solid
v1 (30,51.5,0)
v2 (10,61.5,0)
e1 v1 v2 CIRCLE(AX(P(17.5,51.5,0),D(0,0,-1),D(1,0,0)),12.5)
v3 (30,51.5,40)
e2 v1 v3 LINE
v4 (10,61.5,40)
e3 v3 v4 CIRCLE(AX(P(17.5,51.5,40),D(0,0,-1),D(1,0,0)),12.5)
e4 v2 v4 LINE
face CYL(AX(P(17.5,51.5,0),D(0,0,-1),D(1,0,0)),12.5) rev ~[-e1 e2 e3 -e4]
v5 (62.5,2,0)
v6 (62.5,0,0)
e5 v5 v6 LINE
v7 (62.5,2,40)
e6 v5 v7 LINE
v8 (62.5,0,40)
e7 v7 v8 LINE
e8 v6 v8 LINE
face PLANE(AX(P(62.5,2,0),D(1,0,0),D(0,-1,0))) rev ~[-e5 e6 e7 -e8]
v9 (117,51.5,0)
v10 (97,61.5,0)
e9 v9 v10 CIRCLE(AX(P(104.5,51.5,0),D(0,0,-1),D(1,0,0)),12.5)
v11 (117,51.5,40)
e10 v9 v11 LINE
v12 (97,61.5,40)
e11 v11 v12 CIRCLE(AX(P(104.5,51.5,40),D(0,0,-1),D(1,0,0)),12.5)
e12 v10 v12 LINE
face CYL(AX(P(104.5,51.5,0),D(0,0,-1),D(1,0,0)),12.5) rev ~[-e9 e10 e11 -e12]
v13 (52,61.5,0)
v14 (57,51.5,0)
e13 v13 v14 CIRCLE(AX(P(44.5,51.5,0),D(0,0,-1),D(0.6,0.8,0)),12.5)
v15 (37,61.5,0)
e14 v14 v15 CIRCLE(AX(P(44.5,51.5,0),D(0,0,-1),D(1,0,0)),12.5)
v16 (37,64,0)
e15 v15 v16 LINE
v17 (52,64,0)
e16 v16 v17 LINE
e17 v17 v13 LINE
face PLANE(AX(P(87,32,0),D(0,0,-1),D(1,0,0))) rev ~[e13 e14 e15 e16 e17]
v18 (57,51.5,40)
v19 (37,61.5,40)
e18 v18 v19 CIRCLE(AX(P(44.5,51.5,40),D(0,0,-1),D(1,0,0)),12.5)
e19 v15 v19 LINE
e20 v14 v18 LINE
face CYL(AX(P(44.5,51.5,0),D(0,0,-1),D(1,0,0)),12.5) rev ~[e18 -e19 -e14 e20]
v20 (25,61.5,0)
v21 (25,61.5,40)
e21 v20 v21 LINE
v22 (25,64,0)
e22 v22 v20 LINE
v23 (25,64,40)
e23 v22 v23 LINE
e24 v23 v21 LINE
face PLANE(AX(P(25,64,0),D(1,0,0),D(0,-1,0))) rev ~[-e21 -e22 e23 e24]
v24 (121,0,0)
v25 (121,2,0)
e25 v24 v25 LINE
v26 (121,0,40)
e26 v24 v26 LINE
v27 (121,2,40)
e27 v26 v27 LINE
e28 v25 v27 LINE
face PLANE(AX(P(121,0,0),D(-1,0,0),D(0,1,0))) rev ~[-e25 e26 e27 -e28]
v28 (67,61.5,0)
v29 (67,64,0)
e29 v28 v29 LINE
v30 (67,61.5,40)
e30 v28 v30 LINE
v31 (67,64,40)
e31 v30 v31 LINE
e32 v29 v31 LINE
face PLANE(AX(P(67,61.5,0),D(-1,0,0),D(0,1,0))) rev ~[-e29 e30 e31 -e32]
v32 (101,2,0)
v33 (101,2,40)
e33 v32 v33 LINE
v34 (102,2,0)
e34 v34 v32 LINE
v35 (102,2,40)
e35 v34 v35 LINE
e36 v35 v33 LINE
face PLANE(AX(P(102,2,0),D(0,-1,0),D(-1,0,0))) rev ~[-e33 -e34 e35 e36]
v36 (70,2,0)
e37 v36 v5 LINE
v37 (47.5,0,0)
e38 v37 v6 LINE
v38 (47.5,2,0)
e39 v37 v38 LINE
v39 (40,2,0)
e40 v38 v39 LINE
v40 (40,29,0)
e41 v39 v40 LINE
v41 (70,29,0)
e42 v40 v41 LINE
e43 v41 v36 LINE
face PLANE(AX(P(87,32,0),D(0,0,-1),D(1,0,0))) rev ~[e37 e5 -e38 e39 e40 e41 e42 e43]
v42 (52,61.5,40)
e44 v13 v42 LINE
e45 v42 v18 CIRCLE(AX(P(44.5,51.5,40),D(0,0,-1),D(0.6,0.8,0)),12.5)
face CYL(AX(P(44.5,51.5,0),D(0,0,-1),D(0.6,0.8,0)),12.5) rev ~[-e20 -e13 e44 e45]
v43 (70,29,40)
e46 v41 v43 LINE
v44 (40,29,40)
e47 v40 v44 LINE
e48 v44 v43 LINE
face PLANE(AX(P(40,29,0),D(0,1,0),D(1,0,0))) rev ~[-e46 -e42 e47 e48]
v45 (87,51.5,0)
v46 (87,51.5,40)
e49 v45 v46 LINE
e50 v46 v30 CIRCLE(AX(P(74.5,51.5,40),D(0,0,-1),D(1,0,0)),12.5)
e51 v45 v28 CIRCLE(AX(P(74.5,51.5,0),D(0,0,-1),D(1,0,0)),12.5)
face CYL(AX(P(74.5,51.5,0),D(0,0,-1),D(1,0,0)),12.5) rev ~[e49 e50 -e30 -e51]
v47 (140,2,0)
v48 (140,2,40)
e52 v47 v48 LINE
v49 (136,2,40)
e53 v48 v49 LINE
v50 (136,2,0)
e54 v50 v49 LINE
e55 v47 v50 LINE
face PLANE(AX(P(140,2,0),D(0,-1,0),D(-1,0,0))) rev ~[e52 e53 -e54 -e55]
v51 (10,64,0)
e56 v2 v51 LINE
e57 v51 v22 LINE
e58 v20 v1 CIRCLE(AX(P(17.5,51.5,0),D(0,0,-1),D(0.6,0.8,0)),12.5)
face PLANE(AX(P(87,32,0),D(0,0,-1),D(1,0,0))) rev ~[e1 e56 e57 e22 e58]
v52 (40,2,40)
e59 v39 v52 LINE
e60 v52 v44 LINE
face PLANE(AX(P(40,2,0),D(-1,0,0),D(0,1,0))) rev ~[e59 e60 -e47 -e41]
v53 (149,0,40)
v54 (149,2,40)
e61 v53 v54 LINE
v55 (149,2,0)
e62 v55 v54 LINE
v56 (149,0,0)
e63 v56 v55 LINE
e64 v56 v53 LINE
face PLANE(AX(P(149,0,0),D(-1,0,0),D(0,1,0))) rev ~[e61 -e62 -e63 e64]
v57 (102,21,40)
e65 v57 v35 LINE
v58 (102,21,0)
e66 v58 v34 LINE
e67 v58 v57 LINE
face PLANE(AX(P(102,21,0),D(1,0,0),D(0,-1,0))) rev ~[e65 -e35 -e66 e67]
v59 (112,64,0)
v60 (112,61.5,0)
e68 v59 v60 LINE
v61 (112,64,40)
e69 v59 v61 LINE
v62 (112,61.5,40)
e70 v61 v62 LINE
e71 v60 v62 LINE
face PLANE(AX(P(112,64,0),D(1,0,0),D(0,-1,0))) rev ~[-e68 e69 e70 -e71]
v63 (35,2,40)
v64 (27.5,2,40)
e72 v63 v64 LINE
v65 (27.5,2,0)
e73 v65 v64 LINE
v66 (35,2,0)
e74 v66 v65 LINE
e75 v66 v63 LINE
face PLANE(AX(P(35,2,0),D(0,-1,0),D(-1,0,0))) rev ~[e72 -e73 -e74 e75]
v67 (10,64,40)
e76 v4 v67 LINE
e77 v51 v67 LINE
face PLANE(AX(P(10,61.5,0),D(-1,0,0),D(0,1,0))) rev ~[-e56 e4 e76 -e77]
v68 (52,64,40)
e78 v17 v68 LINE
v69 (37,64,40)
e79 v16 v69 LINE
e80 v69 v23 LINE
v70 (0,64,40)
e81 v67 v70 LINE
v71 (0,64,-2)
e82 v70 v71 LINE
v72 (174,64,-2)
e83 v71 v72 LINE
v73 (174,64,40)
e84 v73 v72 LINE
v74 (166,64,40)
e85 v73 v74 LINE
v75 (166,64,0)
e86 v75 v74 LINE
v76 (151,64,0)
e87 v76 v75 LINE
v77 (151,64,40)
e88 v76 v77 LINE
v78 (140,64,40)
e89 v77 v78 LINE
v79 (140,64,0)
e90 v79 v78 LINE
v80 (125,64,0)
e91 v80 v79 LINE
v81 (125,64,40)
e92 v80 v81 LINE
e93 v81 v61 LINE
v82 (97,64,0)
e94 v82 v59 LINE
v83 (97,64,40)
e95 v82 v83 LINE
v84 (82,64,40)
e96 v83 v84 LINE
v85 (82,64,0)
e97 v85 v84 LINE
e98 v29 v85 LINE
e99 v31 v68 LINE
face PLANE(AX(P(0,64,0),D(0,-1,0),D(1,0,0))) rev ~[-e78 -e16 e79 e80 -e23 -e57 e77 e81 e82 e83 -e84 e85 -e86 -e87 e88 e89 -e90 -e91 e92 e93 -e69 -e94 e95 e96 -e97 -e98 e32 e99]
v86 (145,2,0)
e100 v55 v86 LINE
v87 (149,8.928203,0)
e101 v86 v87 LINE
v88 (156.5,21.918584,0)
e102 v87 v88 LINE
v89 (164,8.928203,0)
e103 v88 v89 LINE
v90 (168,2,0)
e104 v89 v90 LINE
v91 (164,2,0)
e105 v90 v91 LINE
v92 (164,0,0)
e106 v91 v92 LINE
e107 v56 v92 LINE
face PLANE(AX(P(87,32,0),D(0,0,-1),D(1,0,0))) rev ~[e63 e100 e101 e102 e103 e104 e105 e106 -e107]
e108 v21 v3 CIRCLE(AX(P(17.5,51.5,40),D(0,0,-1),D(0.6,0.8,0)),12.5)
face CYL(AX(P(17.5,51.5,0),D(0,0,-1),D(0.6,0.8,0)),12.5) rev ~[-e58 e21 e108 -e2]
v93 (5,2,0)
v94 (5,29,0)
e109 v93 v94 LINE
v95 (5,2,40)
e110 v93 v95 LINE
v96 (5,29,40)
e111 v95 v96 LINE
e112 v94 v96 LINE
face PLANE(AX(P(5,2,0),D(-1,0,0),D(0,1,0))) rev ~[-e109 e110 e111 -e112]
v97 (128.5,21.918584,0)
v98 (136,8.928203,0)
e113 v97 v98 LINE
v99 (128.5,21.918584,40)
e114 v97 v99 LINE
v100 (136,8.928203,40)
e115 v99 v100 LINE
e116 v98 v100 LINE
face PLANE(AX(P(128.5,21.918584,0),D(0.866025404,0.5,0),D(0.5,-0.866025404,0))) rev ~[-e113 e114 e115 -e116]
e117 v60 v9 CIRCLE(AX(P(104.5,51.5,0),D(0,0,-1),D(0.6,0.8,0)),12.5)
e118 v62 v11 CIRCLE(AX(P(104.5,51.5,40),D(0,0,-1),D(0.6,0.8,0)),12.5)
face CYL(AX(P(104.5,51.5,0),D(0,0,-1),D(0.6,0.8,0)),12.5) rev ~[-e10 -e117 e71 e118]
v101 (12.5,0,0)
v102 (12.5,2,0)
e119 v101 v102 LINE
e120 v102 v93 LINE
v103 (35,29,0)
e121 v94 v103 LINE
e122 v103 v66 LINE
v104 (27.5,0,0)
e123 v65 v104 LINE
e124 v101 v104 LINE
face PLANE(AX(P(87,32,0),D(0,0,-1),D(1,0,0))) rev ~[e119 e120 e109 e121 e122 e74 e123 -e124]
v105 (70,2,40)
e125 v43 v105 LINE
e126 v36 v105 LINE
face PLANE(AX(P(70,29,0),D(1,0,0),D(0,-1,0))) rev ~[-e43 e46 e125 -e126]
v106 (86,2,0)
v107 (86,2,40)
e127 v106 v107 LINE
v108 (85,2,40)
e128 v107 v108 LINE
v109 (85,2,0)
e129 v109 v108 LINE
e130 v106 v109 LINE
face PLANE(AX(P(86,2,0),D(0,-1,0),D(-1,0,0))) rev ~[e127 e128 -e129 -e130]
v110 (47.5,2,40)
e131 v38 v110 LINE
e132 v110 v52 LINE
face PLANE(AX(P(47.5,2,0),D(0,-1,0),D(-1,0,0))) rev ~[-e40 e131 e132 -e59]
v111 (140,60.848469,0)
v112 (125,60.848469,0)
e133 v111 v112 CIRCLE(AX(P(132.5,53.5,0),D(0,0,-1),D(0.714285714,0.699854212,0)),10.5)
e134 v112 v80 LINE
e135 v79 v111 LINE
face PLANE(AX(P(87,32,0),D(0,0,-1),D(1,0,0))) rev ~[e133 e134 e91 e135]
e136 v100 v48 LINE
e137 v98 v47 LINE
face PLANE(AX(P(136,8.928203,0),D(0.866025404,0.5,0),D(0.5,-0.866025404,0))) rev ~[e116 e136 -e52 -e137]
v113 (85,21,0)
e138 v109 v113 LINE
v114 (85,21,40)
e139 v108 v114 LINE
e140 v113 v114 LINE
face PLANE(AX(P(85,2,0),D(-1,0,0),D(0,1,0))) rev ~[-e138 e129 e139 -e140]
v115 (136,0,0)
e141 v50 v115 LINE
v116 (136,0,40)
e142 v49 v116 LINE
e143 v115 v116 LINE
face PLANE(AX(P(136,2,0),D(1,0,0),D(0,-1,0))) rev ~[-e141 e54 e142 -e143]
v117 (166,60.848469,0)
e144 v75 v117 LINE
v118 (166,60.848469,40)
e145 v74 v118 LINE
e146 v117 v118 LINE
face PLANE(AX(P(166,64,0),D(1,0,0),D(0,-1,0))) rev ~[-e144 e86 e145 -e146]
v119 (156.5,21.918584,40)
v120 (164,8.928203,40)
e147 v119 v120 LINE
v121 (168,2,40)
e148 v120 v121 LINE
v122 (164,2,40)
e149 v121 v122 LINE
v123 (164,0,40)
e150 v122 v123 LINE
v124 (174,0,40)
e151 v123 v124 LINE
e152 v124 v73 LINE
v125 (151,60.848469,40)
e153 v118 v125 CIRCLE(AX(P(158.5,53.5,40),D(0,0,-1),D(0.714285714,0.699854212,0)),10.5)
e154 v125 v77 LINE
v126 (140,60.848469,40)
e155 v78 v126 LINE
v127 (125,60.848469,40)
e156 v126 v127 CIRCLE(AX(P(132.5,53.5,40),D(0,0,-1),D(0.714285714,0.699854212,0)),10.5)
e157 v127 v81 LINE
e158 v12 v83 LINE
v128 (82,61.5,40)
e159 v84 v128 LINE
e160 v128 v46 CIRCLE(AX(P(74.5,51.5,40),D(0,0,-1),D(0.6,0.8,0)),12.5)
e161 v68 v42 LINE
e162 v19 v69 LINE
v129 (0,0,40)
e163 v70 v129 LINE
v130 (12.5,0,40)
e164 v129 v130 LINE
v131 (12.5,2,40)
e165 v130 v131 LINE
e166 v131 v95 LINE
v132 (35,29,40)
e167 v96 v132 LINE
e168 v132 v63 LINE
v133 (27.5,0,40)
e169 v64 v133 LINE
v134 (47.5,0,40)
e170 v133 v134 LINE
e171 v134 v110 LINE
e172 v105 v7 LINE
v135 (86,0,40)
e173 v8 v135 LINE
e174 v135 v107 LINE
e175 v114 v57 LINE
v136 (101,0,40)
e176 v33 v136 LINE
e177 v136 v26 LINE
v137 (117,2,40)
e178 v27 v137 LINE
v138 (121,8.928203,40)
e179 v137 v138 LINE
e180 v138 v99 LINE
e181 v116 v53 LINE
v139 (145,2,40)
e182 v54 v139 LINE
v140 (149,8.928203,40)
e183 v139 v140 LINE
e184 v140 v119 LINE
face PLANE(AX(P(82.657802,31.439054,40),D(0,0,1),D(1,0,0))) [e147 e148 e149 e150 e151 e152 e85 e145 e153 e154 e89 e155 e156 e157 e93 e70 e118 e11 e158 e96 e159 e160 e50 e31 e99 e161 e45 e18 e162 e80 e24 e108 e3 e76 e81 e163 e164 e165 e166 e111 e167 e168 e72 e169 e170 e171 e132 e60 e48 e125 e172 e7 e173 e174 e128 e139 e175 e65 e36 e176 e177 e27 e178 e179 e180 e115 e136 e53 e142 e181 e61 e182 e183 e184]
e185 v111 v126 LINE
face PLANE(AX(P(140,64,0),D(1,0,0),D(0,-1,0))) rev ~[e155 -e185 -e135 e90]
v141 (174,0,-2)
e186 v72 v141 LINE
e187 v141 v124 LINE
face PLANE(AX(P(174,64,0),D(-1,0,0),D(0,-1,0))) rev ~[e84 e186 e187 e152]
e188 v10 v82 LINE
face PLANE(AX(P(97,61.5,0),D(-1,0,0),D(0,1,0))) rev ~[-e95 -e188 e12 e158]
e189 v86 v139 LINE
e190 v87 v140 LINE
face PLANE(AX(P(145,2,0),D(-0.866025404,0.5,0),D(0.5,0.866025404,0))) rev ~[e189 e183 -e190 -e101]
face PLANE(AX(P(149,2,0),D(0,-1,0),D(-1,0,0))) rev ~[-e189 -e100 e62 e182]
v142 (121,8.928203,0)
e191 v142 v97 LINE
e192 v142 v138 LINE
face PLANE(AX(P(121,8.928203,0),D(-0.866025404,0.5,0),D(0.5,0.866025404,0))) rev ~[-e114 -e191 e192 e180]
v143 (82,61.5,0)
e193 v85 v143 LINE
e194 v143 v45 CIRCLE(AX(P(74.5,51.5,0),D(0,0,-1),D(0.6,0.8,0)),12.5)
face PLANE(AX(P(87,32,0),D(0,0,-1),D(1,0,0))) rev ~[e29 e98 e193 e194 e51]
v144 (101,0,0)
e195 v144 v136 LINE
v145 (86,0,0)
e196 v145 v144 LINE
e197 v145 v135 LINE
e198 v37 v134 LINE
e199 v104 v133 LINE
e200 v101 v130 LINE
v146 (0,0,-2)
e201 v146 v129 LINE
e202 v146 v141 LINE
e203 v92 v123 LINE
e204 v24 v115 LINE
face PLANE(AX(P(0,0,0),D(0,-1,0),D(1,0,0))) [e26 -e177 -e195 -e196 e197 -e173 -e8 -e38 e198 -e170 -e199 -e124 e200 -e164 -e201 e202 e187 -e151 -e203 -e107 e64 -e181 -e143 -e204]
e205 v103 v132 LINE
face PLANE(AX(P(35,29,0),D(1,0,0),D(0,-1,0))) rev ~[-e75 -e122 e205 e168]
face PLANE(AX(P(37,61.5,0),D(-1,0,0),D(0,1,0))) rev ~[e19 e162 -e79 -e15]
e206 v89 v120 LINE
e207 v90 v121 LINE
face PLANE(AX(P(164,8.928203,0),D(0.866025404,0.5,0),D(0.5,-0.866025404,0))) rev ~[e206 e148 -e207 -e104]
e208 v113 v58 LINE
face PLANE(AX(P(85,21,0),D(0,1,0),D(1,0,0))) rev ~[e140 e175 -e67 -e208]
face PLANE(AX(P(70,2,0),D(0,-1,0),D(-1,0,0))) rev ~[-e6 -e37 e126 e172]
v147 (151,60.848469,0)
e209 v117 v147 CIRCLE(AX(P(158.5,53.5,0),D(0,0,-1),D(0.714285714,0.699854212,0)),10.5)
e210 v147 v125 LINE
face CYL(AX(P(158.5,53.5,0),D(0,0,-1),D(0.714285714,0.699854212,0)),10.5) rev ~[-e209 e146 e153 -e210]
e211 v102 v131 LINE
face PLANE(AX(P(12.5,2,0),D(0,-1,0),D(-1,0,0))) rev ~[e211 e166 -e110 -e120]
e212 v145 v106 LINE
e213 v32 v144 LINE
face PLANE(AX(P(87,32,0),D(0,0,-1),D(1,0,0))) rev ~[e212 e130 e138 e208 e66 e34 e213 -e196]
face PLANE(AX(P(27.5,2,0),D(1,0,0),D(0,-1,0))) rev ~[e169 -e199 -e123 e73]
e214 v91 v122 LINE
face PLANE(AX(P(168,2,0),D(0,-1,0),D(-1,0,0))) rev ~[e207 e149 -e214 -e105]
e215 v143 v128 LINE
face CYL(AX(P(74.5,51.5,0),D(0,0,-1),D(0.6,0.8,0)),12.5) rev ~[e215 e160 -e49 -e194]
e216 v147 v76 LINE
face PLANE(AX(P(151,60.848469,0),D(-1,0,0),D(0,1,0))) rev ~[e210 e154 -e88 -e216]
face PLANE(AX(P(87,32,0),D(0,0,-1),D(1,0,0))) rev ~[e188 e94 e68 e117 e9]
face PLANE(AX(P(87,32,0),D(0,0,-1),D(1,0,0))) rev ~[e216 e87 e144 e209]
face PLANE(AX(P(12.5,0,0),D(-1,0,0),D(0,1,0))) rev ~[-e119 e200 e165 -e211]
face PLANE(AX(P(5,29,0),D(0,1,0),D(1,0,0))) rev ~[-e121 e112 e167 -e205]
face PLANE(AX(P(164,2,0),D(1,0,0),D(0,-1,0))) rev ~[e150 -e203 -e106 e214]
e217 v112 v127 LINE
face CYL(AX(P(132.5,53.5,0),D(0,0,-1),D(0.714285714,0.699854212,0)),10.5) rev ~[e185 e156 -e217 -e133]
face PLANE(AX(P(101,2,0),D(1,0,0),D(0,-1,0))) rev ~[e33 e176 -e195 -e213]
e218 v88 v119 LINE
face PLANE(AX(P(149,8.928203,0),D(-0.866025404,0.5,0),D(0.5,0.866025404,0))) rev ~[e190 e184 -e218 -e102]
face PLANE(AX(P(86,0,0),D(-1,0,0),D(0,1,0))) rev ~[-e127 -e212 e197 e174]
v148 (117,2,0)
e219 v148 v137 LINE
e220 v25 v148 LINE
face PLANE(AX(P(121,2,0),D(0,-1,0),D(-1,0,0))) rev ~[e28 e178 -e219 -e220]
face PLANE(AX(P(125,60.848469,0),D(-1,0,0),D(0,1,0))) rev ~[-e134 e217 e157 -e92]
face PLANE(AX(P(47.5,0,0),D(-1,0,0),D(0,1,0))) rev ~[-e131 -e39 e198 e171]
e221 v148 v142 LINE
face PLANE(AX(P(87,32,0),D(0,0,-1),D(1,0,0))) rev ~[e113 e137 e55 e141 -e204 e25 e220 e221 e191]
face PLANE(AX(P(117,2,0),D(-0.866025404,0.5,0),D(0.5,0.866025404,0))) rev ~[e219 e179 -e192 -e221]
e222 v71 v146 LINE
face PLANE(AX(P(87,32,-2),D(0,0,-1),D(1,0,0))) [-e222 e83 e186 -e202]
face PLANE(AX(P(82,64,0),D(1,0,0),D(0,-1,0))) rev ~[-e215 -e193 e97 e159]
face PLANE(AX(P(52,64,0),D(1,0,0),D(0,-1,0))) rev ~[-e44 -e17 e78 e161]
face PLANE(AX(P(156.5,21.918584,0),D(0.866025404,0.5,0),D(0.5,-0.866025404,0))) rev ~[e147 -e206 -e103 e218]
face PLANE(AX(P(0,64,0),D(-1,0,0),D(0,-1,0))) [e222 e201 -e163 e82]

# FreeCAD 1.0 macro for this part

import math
import FreeCAD as App
import Part
import Sketcher
Q = App.Units.Quantity

doc = App.newDocument("Part")
params = doc.addObject("Spreadsheet::Sheet", "Params")
for row, (alias, value) in enumerate([
    ("sketch1_radius", "10.5 mm"),
    ("sketch1_radius2", "12.5 mm"),
    ("sketch1_width", "30 mm"),
    ("sketch1_width2", "20 mm"),
    ("sketch1_width3", "1 mm"),
    ("pad1_length", "40 mm"),
    ("sketch2_width", "174 mm"),
    ("sketch2_height", "64 mm"),
    ("pad2_length", "2 mm"),
], start=1):
    params.set(f"A{row}", alias)
    params.set(f"B{row}", "=" + value)
    params.setAlias(f"B{row}", alias)

body = doc.addObject("PartDesign::Body", "Body")

# Sketch on XY plane
sketch1 = body.newObject("Sketcher::SketchObject", "Sketch")
sketch1.AttachmentSupport = (doc.getObject("XY_Plane"), [""])
sketch1.MapMode = "FlatFace"
sketch1.addGeometry(Part.LineSegment(App.Vector(0, 64, 0), App.Vector(0, 0, 0)), False)
sketch1.addGeometry(Part.LineSegment(App.Vector(0, 0, 0), App.Vector(12.5, 0, 0)), False)
sketch1.addGeometry(Part.LineSegment(App.Vector(12.5, 0, 0), App.Vector(12.5, 2, 0)), False)
sketch1.addGeometry(Part.LineSegment(App.Vector(12.5, 2, 0), App.Vector(5, 2, 0)), False)
sketch1.addGeometry(Part.LineSegment(App.Vector(5, 2, 0), App.Vector(5, 29, 0)), False)
sketch1.addGeometry(Part.LineSegment(App.Vector(5, 29, 0), App.Vector(35, 29, 0)), False)
sketch1.addGeometry(Part.LineSegment(App.Vector(35, 29, 0), App.Vector(35, 2, 0)), False)
sketch1.addGeometry(Part.LineSegment(App.Vector(35, 2, 0), App.Vector(27.5, 2, 0)), False)
sketch1.addGeometry(Part.LineSegment(App.Vector(27.5, 2, 0), App.Vector(27.5, 0, 0)), False)
sketch1.addGeometry(Part.LineSegment(App.Vector(27.5, 0, 0), App.Vector(47.5, 0, 0)), False)
sketch1.addGeometry(Part.LineSegment(App.Vector(47.5, 0, 0), App.Vector(47.5, 2, 0)), False)
sketch1.addGeometry(Part.LineSegment(App.Vector(47.5, 2, 0), App.Vector(40, 2, 0)), False)
sketch1.addGeometry(Part.LineSegment(App.Vector(40, 2, 0), App.Vector(40, 29, 0)), False)
sketch1.addGeometry(Part.LineSegment(App.Vector(40, 29, 0), App.Vector(70, 29, 0)), False)
sketch1.addGeometry(Part.LineSegment(App.Vector(70, 29, 0), App.Vector(70, 2, 0)), False)
sketch1.addGeometry(Part.LineSegment(App.Vector(70, 2, 0), App.Vector(62.5, 2, 0)), False)
sketch1.addGeometry(Part.LineSegment(App.Vector(62.5, 2, 0), App.Vector(62.5, 0, 0)), False)
sketch1.addGeometry(Part.LineSegment(App.Vector(62.5, 0, 0), App.Vector(86, 0, 0)), False)
sketch1.addGeometry(Part.LineSegment(App.Vector(86, 0, 0), App.Vector(86, 2, 0)), False)
sketch1.addGeometry(Part.LineSegment(App.Vector(86, 2, 0), App.Vector(85, 2, 0)), False)
sketch1.addGeometry(Part.LineSegment(App.Vector(85, 2, 0), App.Vector(85, 21, 0)), False)
sketch1.addGeometry(Part.LineSegment(App.Vector(85, 21, 0), App.Vector(102, 21, 0)), False)
sketch1.addGeometry(Part.LineSegment(App.Vector(102, 21, 0), App.Vector(102, 2, 0)), False)
sketch1.addGeometry(Part.LineSegment(App.Vector(102, 2, 0), App.Vector(101, 2, 0)), False)
sketch1.addGeometry(Part.LineSegment(App.Vector(101, 2, 0), App.Vector(101, 0, 0)), False)
sketch1.addGeometry(Part.LineSegment(App.Vector(101, 0, 0), App.Vector(121, 0, 0)), False)
sketch1.addGeometry(Part.LineSegment(App.Vector(121, 0, 0), App.Vector(121, 2, 0)), False)
sketch1.addGeometry(Part.LineSegment(App.Vector(121, 2, 0), App.Vector(117, 2, 0)), False)
sketch1.addGeometry(Part.LineSegment(App.Vector(117, 2, 0), App.Vector(121, 8.9, 0)), False)
sketch1.addGeometry(Part.LineSegment(App.Vector(121, 8.9, 0), App.Vector(128.5, 21.9, 0)), False)
sketch1.addGeometry(Part.LineSegment(App.Vector(128.5, 21.9, 0), App.Vector(136, 8.9, 0)), False)
sketch1.addGeometry(Part.LineSegment(App.Vector(136, 8.9, 0), App.Vector(140, 2, 0)), False)
sketch1.addGeometry(Part.LineSegment(App.Vector(140, 2, 0), App.Vector(136, 2, 0)), False)
sketch1.addGeometry(Part.LineSegment(App.Vector(136, 2, 0), App.Vector(136, 0, 0)), False)
sketch1.addGeometry(Part.LineSegment(App.Vector(136, 0, 0), App.Vector(149, 0, 0)), False)
sketch1.addGeometry(Part.LineSegment(App.Vector(149, 0, 0), App.Vector(149, 2, 0)), False)
sketch1.addGeometry(Part.LineSegment(App.Vector(149, 2, 0), App.Vector(145, 2, 0)), False)
sketch1.addGeometry(Part.LineSegment(App.Vector(145, 2, 0), App.Vector(149, 8.9, 0)), False)
sketch1.addGeometry(Part.LineSegment(App.Vector(149, 8.9, 0), App.Vector(156.5, 21.9, 0)), False)
sketch1.addGeometry(Part.LineSegment(App.Vector(156.5, 21.9, 0), App.Vector(164, 8.9, 0)), False)
sketch1.addGeometry(Part.LineSegment(App.Vector(164, 8.9, 0), App.Vector(168, 2, 0)), False)
sketch1.addGeometry(Part.LineSegment(App.Vector(168, 2, 0), App.Vector(164, 2, 0)), False)
sketch1.addGeometry(Part.LineSegment(App.Vector(164, 2, 0), App.Vector(164, 0, 0)), False)
sketch1.addGeometry(Part.LineSegment(App.Vector(164, 0, 0), App.Vector(174, 0, 0)), False)
sketch1.addGeometry(Part.LineSegment(App.Vector(174, 0, 0), App.Vector(174, 64, 0)), False)
sketch1.addGeometry(Part.LineSegment(App.Vector(174, 64, 0), App.Vector(166, 64, 0)), False)
sketch1.addGeometry(Part.LineSegment(App.Vector(166, 64, 0), App.Vector(166, 60.8, 0)), False)
sketch1.addGeometry(Part.ArcOfCircle(Part.Circle(App.Vector(158.5, 53.5, 0), App.Vector(0, 0, 1), 10.5), math.radians(136), math.radians(404)), False)
sketch1.addGeometry(Part.LineSegment(App.Vector(151, 60.8, 0), App.Vector(151, 64, 0)), False)
sketch1.addGeometry(Part.LineSegment(App.Vector(151, 64, 0), App.Vector(140, 64, 0)), False)
sketch1.addGeometry(Part.LineSegment(App.Vector(140, 64, 0), App.Vector(140, 60.8, 0)), False)
sketch1.addGeometry(Part.ArcOfCircle(Part.Circle(App.Vector(132.5, 53.5, 0), App.Vector(0, 0, 1), 10.5), math.radians(136), math.radians(404)), False)
sketch1.addGeometry(Part.LineSegment(App.Vector(125, 60.8, 0), App.Vector(125, 64, 0)), False)
sketch1.addGeometry(Part.LineSegment(App.Vector(125, 64, 0), App.Vector(112, 64, 0)), False)
sketch1.addGeometry(Part.LineSegment(App.Vector(112, 64, 0), App.Vector(112, 61.5, 0)), False)
sketch1.addGeometry(Part.ArcOfCircle(Part.Circle(App.Vector(104.5, 51.5, 0), App.Vector(0, 0, 1), 12.5), math.radians(0), math.radians(53)), False)
sketch1.addGeometry(Part.ArcOfCircle(Part.Circle(App.Vector(104.5, 51.5, 0), App.Vector(0, 0, 1), 12.5), math.radians(127), math.radians(360)), False)
sketch1.addGeometry(Part.LineSegment(App.Vector(97, 61.5, 0), App.Vector(97, 64, 0)), False)
sketch1.addGeometry(Part.LineSegment(App.Vector(97, 64, 0), App.Vector(82, 64, 0)), False)
sketch1.addGeometry(Part.LineSegment(App.Vector(82, 64, 0), App.Vector(82, 61.5, 0)), False)
sketch1.addGeometry(Part.ArcOfCircle(Part.Circle(App.Vector(74.5, 51.5, 0), App.Vector(0, 0, 1), 12.5), math.radians(0), math.radians(53)), False)
sketch1.addGeometry(Part.ArcOfCircle(Part.Circle(App.Vector(74.5, 51.5, 0), App.Vector(0, 0, 1), 12.5), math.radians(127), math.radians(360)), False)
sketch1.addGeometry(Part.LineSegment(App.Vector(67, 61.5, 0), App.Vector(67, 64, 0)), False)
sketch1.addGeometry(Part.LineSegment(App.Vector(67, 64, 0), App.Vector(52, 64, 0)), False)
sketch1.addGeometry(Part.LineSegment(App.Vector(52, 64, 0), App.Vector(52, 61.5, 0)), False)
sketch1.addGeometry(Part.ArcOfCircle(Part.Circle(App.Vector(44.5, 51.5, 0), App.Vector(0, 0, 1), 12.5), math.radians(0), math.radians(53)), False)
sketch1.addGeometry(Part.ArcOfCircle(Part.Circle(App.Vector(44.5, 51.5, 0), App.Vector(0, 0, 1), 12.5), math.radians(127), math.radians(360)), False)
sketch1.addGeometry(Part.LineSegment(App.Vector(37, 61.5, 0), App.Vector(37, 64, 0)), False)
sketch1.addGeometry(Part.LineSegment(App.Vector(37, 64, 0), App.Vector(25, 64, 0)), False)
sketch1.addGeometry(Part.LineSegment(App.Vector(25, 64, 0), App.Vector(25, 61.5, 0)), False)
sketch1.addGeometry(Part.ArcOfCircle(Part.Circle(App.Vector(17.5, 51.5, 0), App.Vector(0, 0, 1), 12.5), math.radians(0), math.radians(53)), False)
sketch1.addGeometry(Part.ArcOfCircle(Part.Circle(App.Vector(17.5, 51.5, 0), App.Vector(0, 0, 1), 12.5), math.radians(127), math.radians(360)), False)
sketch1.addGeometry(Part.LineSegment(App.Vector(10, 61.5, 0), App.Vector(10, 64, 0)), False)
sketch1.addGeometry(Part.LineSegment(App.Vector(10, 64, 0), App.Vector(0, 64, 0)), False)
sketch1.addConstraint(Sketcher.Constraint("Coincident", 0, 2, 1, 1))
sketch1.addConstraint(Sketcher.Constraint("Coincident", 1, 2, 2, 1))
sketch1.addConstraint(Sketcher.Constraint("Coincident", 2, 2, 3, 1))
sketch1.addConstraint(Sketcher.Constraint("Coincident", 3, 2, 4, 1))
sketch1.addConstraint(Sketcher.Constraint("Coincident", 4, 2, 5, 1))
sketch1.addConstraint(Sketcher.Constraint("Coincident", 5, 2, 6, 1))
sketch1.addConstraint(Sketcher.Constraint("Coincident", 6, 2, 7, 1))
sketch1.addConstraint(Sketcher.Constraint("Coincident", 7, 2, 8, 1))
sketch1.addConstraint(Sketcher.Constraint("Coincident", 8, 2, 9, 1))
sketch1.addConstraint(Sketcher.Constraint("Coincident", 9, 2, 10, 1))
sketch1.addConstraint(Sketcher.Constraint("Coincident", 10, 2, 11, 1))
sketch1.addConstraint(Sketcher.Constraint("Coincident", 11, 2, 12, 1))
sketch1.addConstraint(Sketcher.Constraint("Coincident", 12, 2, 13, 1))
sketch1.addConstraint(Sketcher.Constraint("Coincident", 13, 2, 14, 1))
sketch1.addConstraint(Sketcher.Constraint("Coincident", 14, 2, 15, 1))
sketch1.addConstraint(Sketcher.Constraint("Coincident", 15, 2, 16, 1))
sketch1.addConstraint(Sketcher.Constraint("Coincident", 16, 2, 17, 1))
sketch1.addConstraint(Sketcher.Constraint("Coincident", 17, 2, 18, 1))
sketch1.addConstraint(Sketcher.Constraint("Coincident", 18, 2, 19, 1))
sketch1.addConstraint(Sketcher.Constraint("Coincident", 19, 2, 20, 1))
sketch1.addConstraint(Sketcher.Constraint("Coincident", 20, 2, 21, 1))
sketch1.addConstraint(Sketcher.Constraint("Coincident", 21, 2, 22, 1))
sketch1.addConstraint(Sketcher.Constraint("Coincident", 22, 2, 23, 1))
sketch1.addConstraint(Sketcher.Constraint("Coincident", 23, 2, 24, 1))
sketch1.addConstraint(Sketcher.Constraint("Coincident", 24, 2, 25, 1))
sketch1.addConstraint(Sketcher.Constraint("Coincident", 25, 2, 26, 1))
sketch1.addConstraint(Sketcher.Constraint("Coincident", 26, 2, 27, 1))
sketch1.addConstraint(Sketcher.Constraint("Coincident", 27, 2, 28, 1))
sketch1.addConstraint(Sketcher.Constraint("Coincident", 28, 2, 29, 1))
sketch1.addConstraint(Sketcher.Constraint("Coincident", 29, 2, 30, 1))
sketch1.addConstraint(Sketcher.Constraint("Coincident", 30, 2, 31, 1))
sketch1.addConstraint(Sketcher.Constraint("Coincident", 31, 2, 32, 1))
sketch1.addConstraint(Sketcher.Constraint("Coincident", 32, 2, 33, 1))
sketch1.addConstraint(Sketcher.Constraint("Coincident", 33, 2, 34, 1))
sketch1.addConstraint(Sketcher.Constraint("Coincident", 34, 2, 35, 1))
sketch1.addConstraint(Sketcher.Constraint("Coincident", 35, 2, 36, 1))
sketch1.addConstraint(Sketcher.Constraint("Coincident", 36, 2, 37, 1))
sketch1.addConstraint(Sketcher.Constraint("Coincident", 37, 2, 38, 1))
sketch1.addConstraint(Sketcher.Constraint("Coincident", 38, 2, 39, 1))
sketch1.addConstraint(Sketcher.Constraint("Coincident", 39, 2, 40, 1))
sketch1.addConstraint(Sketcher.Constraint("Coincident", 40, 2, 41, 1))
sketch1.addConstraint(Sketcher.Constraint("Coincident", 41, 2, 42, 1))
sketch1.addConstraint(Sketcher.Constraint("Coincident", 42, 2, 43, 1))
sketch1.addConstraint(Sketcher.Constraint("Coincident", 43, 2, 44, 1))
sketch1.addConstraint(Sketcher.Constraint("Coincident", 44, 2, 45, 1))
sketch1.addConstraint(Sketcher.Constraint("Coincident", 45, 2, 46, 1))
sketch1.addConstraint(Sketcher.Constraint("Coincident", 46, 2, 47, 2))
sketch1.addConstraint(Sketcher.Constraint("Coincident", 47, 1, 48, 1))
sketch1.addConstraint(Sketcher.Constraint("Coincident", 48, 2, 49, 1))
sketch1.addConstraint(Sketcher.Constraint("Coincident", 49, 2, 50, 1))
sketch1.addConstraint(Sketcher.Constraint("Coincident", 50, 2, 51, 2))
sketch1.addConstraint(Sketcher.Constraint("Coincident", 51, 1, 52, 1))
sketch1.addConstraint(Sketcher.Constraint("Coincident", 52, 2, 53, 1))
sketch1.addConstraint(Sketcher.Constraint("Coincident", 53, 2, 54, 1))
sketch1.addConstraint(Sketcher.Constraint("Coincident", 54, 2, 55, 2))
sketch1.addConstraint(Sketcher.Constraint("Tangent", 55, 1, 56, 2))
sketch1.addConstraint(Sketcher.Constraint("Coincident", 56, 1, 57, 1))
sketch1.addConstraint(Sketcher.Constraint("Coincident", 57, 2, 58, 1))
sketch1.addConstraint(Sketcher.Constraint("Coincident", 58, 2, 59, 1))
sketch1.addConstraint(Sketcher.Constraint("Coincident", 59, 2, 60, 2))
sketch1.addConstraint(Sketcher.Constraint("Tangent", 60, 1, 61, 2))
sketch1.addConstraint(Sketcher.Constraint("Coincident", 61, 1, 62, 1))
sketch1.addConstraint(Sketcher.Constraint("Coincident", 62, 2, 63, 1))
sketch1.addConstraint(Sketcher.Constraint("Coincident", 63, 2, 64, 1))
sketch1.addConstraint(Sketcher.Constraint("Coincident", 64, 2, 65, 2))
sketch1.addConstraint(Sketcher.Constraint("Tangent", 65, 1, 66, 2))
sketch1.addConstraint(Sketcher.Constraint("Coincident", 66, 1, 67, 1))
sketch1.addConstraint(Sketcher.Constraint("Coincident", 67, 2, 68, 1))
sketch1.addConstraint(Sketcher.Constraint("Coincident", 68, 2, 69, 1))
sketch1.addConstraint(Sketcher.Constraint("Coincident", 69, 2, 70, 2))
sketch1.addConstraint(Sketcher.Constraint("Tangent", 70, 1, 71, 2))
sketch1.addConstraint(Sketcher.Constraint("Coincident", 71, 1, 72, 1))
sketch1.addConstraint(Sketcher.Constraint("Coincident", 72, 2, 73, 1))
sketch1.addConstraint(Sketcher.Constraint("Coincident", 73, 2, 0, 1))
sketch1.addConstraint(Sketcher.Constraint("Vertical", 0))
sketch1.addConstraint(Sketcher.Constraint("Horizontal", 1))
sketch1.addConstraint(Sketcher.Constraint("Vertical", 2))
sketch1.addConstraint(Sketcher.Constraint("Horizontal", 3))
sketch1.addConstraint(Sketcher.Constraint("Vertical", 4))
sketch1.addConstraint(Sketcher.Constraint("Horizontal", 5))
sketch1.addConstraint(Sketcher.Constraint("Vertical", 6))
sketch1.addConstraint(Sketcher.Constraint("Horizontal", 7))
sketch1.addConstraint(Sketcher.Constraint("Vertical", 8))
sketch1.addConstraint(Sketcher.Constraint("Horizontal", 9))
sketch1.addConstraint(Sketcher.Constraint("Vertical", 10))
sketch1.addConstraint(Sketcher.Constraint("Horizontal", 11))
sketch1.addConstraint(Sketcher.Constraint("Vertical", 12))
sketch1.addConstraint(Sketcher.Constraint("Horizontal", 13))
sketch1.addConstraint(Sketcher.Constraint("Vertical", 14))
sketch1.addConstraint(Sketcher.Constraint("Horizontal", 15))
sketch1.addConstraint(Sketcher.Constraint("Vertical", 16))
sketch1.addConstraint(Sketcher.Constraint("Horizontal", 17))
sketch1.addConstraint(Sketcher.Constraint("Vertical", 18))
sketch1.addConstraint(Sketcher.Constraint("Horizontal", 19))
sketch1.addConstraint(Sketcher.Constraint("Vertical", 20))
sketch1.addConstraint(Sketcher.Constraint("Horizontal", 21))
sketch1.addConstraint(Sketcher.Constraint("Vertical", 22))
sketch1.addConstraint(Sketcher.Constraint("Horizontal", 23))
sketch1.addConstraint(Sketcher.Constraint("Vertical", 24))
sketch1.addConstraint(Sketcher.Constraint("Horizontal", 25))
sketch1.addConstraint(Sketcher.Constraint("Vertical", 26))
sketch1.addConstraint(Sketcher.Constraint("Horizontal", 27))
sketch1.addConstraint(Sketcher.Constraint("Horizontal", 32))
sketch1.addConstraint(Sketcher.Constraint("Vertical", 33))
sketch1.addConstraint(Sketcher.Constraint("Horizontal", 34))
sketch1.addConstraint(Sketcher.Constraint("Vertical", 35))
sketch1.addConstraint(Sketcher.Constraint("Horizontal", 36))
sketch1.addConstraint(Sketcher.Constraint("Horizontal", 41))
sketch1.addConstraint(Sketcher.Constraint("Vertical", 42))
sketch1.addConstraint(Sketcher.Constraint("Horizontal", 43))
sketch1.addConstraint(Sketcher.Constraint("Vertical", 44))
sketch1.addConstraint(Sketcher.Constraint("Horizontal", 45))
sketch1.addConstraint(Sketcher.Constraint("Vertical", 46))
sketch1.addConstraint(Sketcher.Constraint("Vertical", 48))
sketch1.addConstraint(Sketcher.Constraint("Horizontal", 49))
sketch1.addConstraint(Sketcher.Constraint("Vertical", 50))
sketch1.addConstraint(Sketcher.Constraint("Vertical", 52))
sketch1.addConstraint(Sketcher.Constraint("Horizontal", 53))
sketch1.addConstraint(Sketcher.Constraint("Vertical", 54))
sketch1.addConstraint(Sketcher.Constraint("Vertical", 57))
sketch1.addConstraint(Sketcher.Constraint("Horizontal", 58))
sketch1.addConstraint(Sketcher.Constraint("Vertical", 59))
sketch1.addConstraint(Sketcher.Constraint("Vertical", 62))
sketch1.addConstraint(Sketcher.Constraint("Horizontal", 63))
sketch1.addConstraint(Sketcher.Constraint("Vertical", 64))
sketch1.addConstraint(Sketcher.Constraint("Vertical", 67))
sketch1.addConstraint(Sketcher.Constraint("Horizontal", 68))
sketch1.addConstraint(Sketcher.Constraint("Vertical", 69))
sketch1.addConstraint(Sketcher.Constraint("Vertical", 72))
sketch1.addConstraint(Sketcher.Constraint("Horizontal", 73))
sketch1.addConstraint(Sketcher.Constraint("Coincident", 0, 2, -1, 1))
sketch1.addConstraint(Sketcher.Constraint("Equal", 47, 51))
sketch1.addConstraint(Sketcher.Constraint("Equal", 55, 56))
sketch1.addConstraint(Sketcher.Constraint("Equal", 56, 60))
sketch1.addConstraint(Sketcher.Constraint("Equal", 60, 61))
sketch1.addConstraint(Sketcher.Constraint("Equal", 61, 65))
sketch1.addConstraint(Sketcher.Constraint("Equal", 65, 66))
sketch1.addConstraint(Sketcher.Constraint("Equal", 66, 70))
sketch1.addConstraint(Sketcher.Constraint("Equal", 70, 71))
sketch1.addConstraint(Sketcher.Constraint("PointOnObject", 8, 2, -1))
sketch1.addConstraint(Sketcher.Constraint("PointOnObject", 16, 2, -1))
sketch1.addConstraint(Sketcher.Constraint("PointOnObject", 24, 2, -1))
sketch1.addConstraint(Sketcher.Constraint("PointOnObject", 33, 2, -1))
sketch1.addConstraint(Sketcher.Constraint("PointOnObject", 42, 2, -1))
sketch1.addConstraint(Sketcher.Constraint("Parallel", 28, 29))
sketch1.addConstraint(Sketcher.Constraint("Parallel", 30, 31))
sketch1.addConstraint(Sketcher.Constraint("Parallel", 29, 37))
sketch1.addConstraint(Sketcher.Constraint("Parallel", 37, 38))
sketch1.addConstraint(Sketcher.Constraint("Parallel", 31, 39))
sketch1.addConstraint(Sketcher.Constraint("Parallel", 39, 40))
sketch1.addConstraint(Sketcher.Constraint("Horizontal", 47, 3, 51, 3))
sketch1.addConstraint(Sketcher.Constraint("Horizontal", 56, 3, 60, 3))
sketch1.addConstraint(Sketcher.Constraint("Horizontal", 61, 3, 65, 3))
sketch1.addConstraint(Sketcher.Constraint("Horizontal", 66, 3, 70, 3))
sketch1.addConstraint(Sketcher.Constraint("Horizontal", 3, 2, 6, 2))
sketch1.addConstraint(Sketcher.Constraint("Horizontal", 7, 2, 10, 2))
sketch1.addConstraint(Sketcher.Constraint("Horizontal", 5, 2, 12, 2))
sketch1.addConstraint(Sketcher.Constraint("Horizontal", 11, 2, 14, 2))
sketch1.addConstraint(Sketcher.Constraint("Horizontal", 15, 2, 18, 2))
sketch1.addConstraint(Sketcher.Constraint("Horizontal", 19, 2, 22, 2))
sketch1.addConstraint(Sketcher.Constraint("Horizontal", 23, 2, 26, 2))
sketch1.addConstraint(Sketcher.Constraint("Horizontal", 28, 2, 30, 2))
sketch1.addConstraint(Sketcher.Constraint("Horizontal", 27, 2, 31, 2))
sketch1.addConstraint(Sketcher.Constraint("Horizontal", 32, 2, 35, 2))
sketch1.addConstraint(Sketcher.Constraint("Horizontal", 30, 2, 37, 2))
sketch1.addConstraint(Sketcher.Constraint("Horizontal", 29, 2, 38, 2))
sketch1.addConstraint(Sketcher.Constraint("Horizontal", 37, 2, 39, 2))
sketch1.addConstraint(Sketcher.Constraint("Horizontal", 36, 2, 40, 2))
sketch1.addConstraint(Sketcher.Constraint("Horizontal", 46, 2, 47, 1))
sketch1.addConstraint(Sketcher.Constraint("Horizontal", 45, 2, 48, 2))
sketch1.addConstraint(Sketcher.Constraint("Horizontal", 47, 1, 50, 2))
sketch1.addConstraint(Sketcher.Constraint("Horizontal", 50, 2, 51, 1))
sketch1.addConstraint(Sketcher.Constraint("Horizontal", 49, 2, 52, 2))
sketch1.addConstraint(Sketcher.Constraint("Horizontal", 71, 3, 55, 1))
sketch1.addConstraint(Sketcher.Constraint("Horizontal", 54, 2, 56, 1))
sketch1.addConstraint(Sketcher.Constraint("Horizontal", 53, 2, 57, 2))
sketch1.addConstraint(Sketcher.Constraint("Horizontal", 56, 1, 59, 2))
sketch1.addConstraint(Sketcher.Constraint("Horizontal", 55, 1, 60, 1))
sketch1.addConstraint(Sketcher.Constraint("Horizontal", 59, 2, 61, 1))
sketch1.addConstraint(Sketcher.Constraint("Horizontal", 58, 2, 62, 2))
sketch1.addConstraint(Sketcher.Constraint("Horizontal", 61, 1, 64, 2))
sketch1.addConstraint(Sketcher.Constraint("Horizontal", 60, 1, 65, 1))
sketch1.addConstraint(Sketcher.Constraint("Horizontal", 64, 2, 66, 1))
sketch1.addConstraint(Sketcher.Constraint("Horizontal", 63, 2, 67, 2))
sketch1.addConstraint(Sketcher.Constraint("Horizontal", 66, 1, 69, 2))
sketch1.addConstraint(Sketcher.Constraint("Horizontal", 65, 1, 70, 1))
sketch1.addConstraint(Sketcher.Constraint("Horizontal", 69, 2, 71, 1))
sketch1.addConstraint(Sketcher.Constraint("Horizontal", 68, 2, 72, 2))
sketch1.addConstraint(Sketcher.Constraint("Vertical", 26, 2, 28, 2))
sketch1.addConstraint(Sketcher.Constraint("Vertical", 30, 2, 32, 2))
sketch1.addConstraint(Sketcher.Constraint("Vertical", 35, 2, 37, 2))
sketch1.addConstraint(Sketcher.Constraint("Vertical", 39, 2, 41, 2))
sketch1.addConstraint(Sketcher.Constraint("Vertical", 31, 2, 49, 2))
sketch1.addConstraint(Sketcher.Constraint("Vertical", 27, 2, 55, 1))
sketch1.addConstraint(Sketcher.Constraint("Equal", 3, 7))
sketch1.addConstraint(Sketcher.Constraint("Equal", 7, 11))
sketch1.addConstraint(Sketcher.Constraint("Equal", 5, 13))
sketch1.addConstraint(Sketcher.Constraint("Equal", 11, 15))
sketch1.addConstraint(Sketcher.Constraint("Equal", 19, 23))
sketch1.addConstraint(Sketcher.Constraint("Equal", 9, 25))
sketch1.addConstraint(Sketcher.Constraint("Equal", 27, 32))
sketch1.addConstraint(Sketcher.Constraint("Equal", 34, 53))
sketch1.addConstraint(Sketcher.Constraint("Equal", 58, 63))
sketch1.addConstraint(Sketcher.Constraint("Equal", 43, 73))
sketch1.addConstraint(Sketcher.Constraint("Radius", 47, 10.5))
sketch1.addConstraint(Sketcher.Constraint("Radius", 55, 12.5))
sketch1.addConstraint(Sketcher.Constraint("DistanceX", 5, 1, 5, 2, 30.0))
sketch1.addConstraint(Sketcher.Constraint("DistanceX", 9, 1, 9, 2, 20.0))
sketch1.addConstraint(Sketcher.Constraint("DistanceX", 19, 2, 19, 1, 1.0))
sketch1.addConstraint(Sketcher.Constraint("DistanceX", 21, 1, 21, 2, 17.0))
sketch1.addConstraint(Sketcher.Constraint("DistanceX", 27, 2, 27, 1, 4.0))
sketch1.addConstraint(Sketcher.Constraint("DistanceX", 34, 1, 34, 2, 13.0))
sketch1.addConstraint(Sketcher.Constraint("DistanceX", 43, 1, 43, 2, 10.0))
sketch1.addConstraint(Sketcher.Constraint("DistanceX", 45, 2, 45, 1, 8.0))
sketch1.addConstraint(Sketcher.Constraint("DistanceX", 49, 2, 49, 1, 11.0))
sketch1.addConstraint(Sketcher.Constraint("DistanceX", 58, 2, 58, 1, 15.0))
sketch1.addConstraint(Sketcher.Constraint("DistanceX", 68, 2, 68, 1, 12.0))
sketch1.addConstraint(Sketcher.Constraint("DistanceY", 0, 2, 0, 1, 64.0))
sketch1.addConstraint(Sketcher.Constraint("DistanceY", 2, 1, 2, 2, 2.0))
sketch1.addConstraint(Sketcher.Constraint("DistanceY", 4, 1, 4, 2, 27.0))
sketch1.addConstraint(Sketcher.Constraint("DistanceY", 20, 1, 20, 2, 19.0))
sketch1.addConstraint(Sketcher.Constraint("Angle", 28, Q("60 deg")))
sketch1.addConstraint(Sketcher.Constraint("Distance", 29, 15.0))
sketch1.addConstraint(Sketcher.Constraint("DistanceX", 1, 1, 1, 2, 12.5))
sketch1.addConstraint(Sketcher.Constraint("DistanceX", 3, 2, 3, 1, 7.5))
sketch1.addConstraint(Sketcher.Constraint("DistanceY", 54, 2, 54, 1, 2.5))
sketch1.addConstraint(Sketcher.Constraint("DistanceY", -1, 1, 47, 3, 53.5))
sketch1.setExpression("Constraints[204]", "Params.sketch1_radius")
sketch1.setExpression("Constraints[205]", "Params.sketch1_radius2")
sketch1.setExpression("Constraints[206]", "Params.sketch1_width")
sketch1.setExpression("Constraints[207]", "Params.sketch1_width2")
sketch1.setExpression("Constraints[208]", "Params.sketch1_width3")
pad1 = body.newObject("PartDesign::Pad", "Pad")
pad1.Profile = sketch1
pad1.setExpression("Length", "Params.pad1_length")

# Sketch on XY plane
sketch2 = body.newObject("Sketcher::SketchObject", "Sketch001")
sketch2.AttachmentSupport = (doc.getObject("XY_Plane"), [""])
sketch2.MapMode = "FlatFace"
sketch2.addGeometry(Part.LineSegment(App.Vector(0, 0, 0), App.Vector(0, 64, 0)), False)
sketch2.addGeometry(Part.LineSegment(App.Vector(0, 64, 0), App.Vector(174, 64, 0)), False)
sketch2.addGeometry(Part.LineSegment(App.Vector(174, 64, 0), App.Vector(174, 0, 0)), False)
sketch2.addGeometry(Part.LineSegment(App.Vector(174, 0, 0), App.Vector(0, 0, 0)), False)
sketch2.addConstraint(Sketcher.Constraint("Coincident", 0, 2, 1, 1))
sketch2.addConstraint(Sketcher.Constraint("Coincident", 1, 2, 2, 1))
sketch2.addConstraint(Sketcher.Constraint("Coincident", 2, 2, 3, 1))
sketch2.addConstraint(Sketcher.Constraint("Coincident", 3, 2, 0, 1))
sketch2.addConstraint(Sketcher.Constraint("Vertical", 0))
sketch2.addConstraint(Sketcher.Constraint("Horizontal", 1))
sketch2.addConstraint(Sketcher.Constraint("Vertical", 2))
sketch2.addConstraint(Sketcher.Constraint("Horizontal", 3))
sketch2.addConstraint(Sketcher.Constraint("Coincident", 3, 2, -1, 1))
sketch2.addConstraint(Sketcher.Constraint("DistanceX", 1, 1, 1, 2, 174.0))
sketch2.addConstraint(Sketcher.Constraint("DistanceY", 0, 1, 0, 2, 64.0))
sketch2.setExpression("Constraints[9]", "Params.sketch2_width")
sketch2.setExpression("Constraints[10]", "Params.sketch2_height")
pad2 = body.newObject("PartDesign::Pad", "Pad001")
pad2.Profile = sketch2
pad2.setExpression("Length", "Params.pad2_length")
pad2.Reversed = True

doc.recompute()
